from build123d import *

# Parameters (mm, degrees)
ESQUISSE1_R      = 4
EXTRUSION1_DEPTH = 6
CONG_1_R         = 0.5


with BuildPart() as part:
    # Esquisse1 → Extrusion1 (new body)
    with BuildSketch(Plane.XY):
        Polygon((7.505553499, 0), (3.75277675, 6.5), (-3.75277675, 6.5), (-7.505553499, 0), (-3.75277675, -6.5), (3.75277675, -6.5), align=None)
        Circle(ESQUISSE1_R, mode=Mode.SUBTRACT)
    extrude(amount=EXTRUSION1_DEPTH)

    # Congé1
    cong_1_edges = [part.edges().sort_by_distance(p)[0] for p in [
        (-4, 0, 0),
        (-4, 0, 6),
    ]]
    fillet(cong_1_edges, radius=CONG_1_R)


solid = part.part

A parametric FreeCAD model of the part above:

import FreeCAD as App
import Part
import Sketcher
from FreeCAD import Vector
Q = App.Units.Quantity


def edges_at(feature, points):
    """Names of the edges that pass closest to the given points."""
    edges = feature.Shape.Edges
    near = lambda p: min(range(len(edges)), key=lambda i: edges[i].distToShape(Part.Vertex(*p))[0])
    return sorted({f"Edge{near(p) + 1}" for p in points})


def add_polygon(sketch, points):
    """Adds a closed chain of lines whose ends are joined by coincident constraints."""
    first, n = sketch.GeometryCount, len(points)
    for a, b in zip(points, points[1:] + points[:1]):
        sketch.addGeometry(Part.LineSegment(App.Vector(*a, 0), App.Vector(*b, 0)), False)
    for i in range(n):
        sketch.addConstraint(Sketcher.Constraint("Coincident", first + i, 2, first + (i + 1) % n, 1))

doc = App.newDocument("Part")
body = doc.addObject("PartDesign::Body", "Body")

# Sketch on XY plane
sketch1 = body.newObject("Sketcher::SketchObject", "Sketch")
sketch1.AttachmentSupport = (doc.getObject("XY_Plane"), [""])
sketch1.MapMode = "FlatFace"
add_polygon(sketch1, [(7.5, 0), (3.8, 6.5), (-3.8, 6.5), (-7.5, 0), (-3.8, -6.5), (3.8, -6.5)])  # lines 0-5
sketch1.addGeometry(Part.Circle(Vector(0, 0, 0), Vector(0, 0, 1), 4), False)  # 6
sketch1.addConstraint([
    Sketcher.Constraint("Horizontal", 1),
    Sketcher.Constraint("Horizontal", 4),
    Sketcher.Constraint("Coincident", 6, 3, -1, 1),
    Sketcher.Constraint("Symmetric", 0, 2, 3, 2, -1, 1),
    Sketcher.Constraint("Symmetric", 2, 2, 5, 2, -1, 1),
    Sketcher.Constraint("PointOnObject", 2, 2, -1),
    Sketcher.Constraint("Parallel", 2, 5),
    Sketcher.Constraint("Vertical", 1, 2, 3, 2),
    Sketcher.Constraint("Diameter", 6, Q("8 mm")),
    Sketcher.Constraint("Angle", 0, Q("120 deg")),
    Sketcher.Constraint("DistanceY", 3, 2, 1, 2, Q("13 mm")),
    Sketcher.Constraint("DistanceX", 1, 2, 1, 1, Q("7.505554 mm")),
])
pad1 = body.newObject("PartDesign::Pad", "Pad")
pad1.Profile = sketch1
pad1.Length = 6
doc.recompute()

fillet = body.newObject("PartDesign::Fillet", "Fillet")
fillet.Base = (pad1, edges_at(pad1, [(-4, 0, 0), (-4, 0, 6)]))
fillet.Radius = 0.5

doc.recompute()
